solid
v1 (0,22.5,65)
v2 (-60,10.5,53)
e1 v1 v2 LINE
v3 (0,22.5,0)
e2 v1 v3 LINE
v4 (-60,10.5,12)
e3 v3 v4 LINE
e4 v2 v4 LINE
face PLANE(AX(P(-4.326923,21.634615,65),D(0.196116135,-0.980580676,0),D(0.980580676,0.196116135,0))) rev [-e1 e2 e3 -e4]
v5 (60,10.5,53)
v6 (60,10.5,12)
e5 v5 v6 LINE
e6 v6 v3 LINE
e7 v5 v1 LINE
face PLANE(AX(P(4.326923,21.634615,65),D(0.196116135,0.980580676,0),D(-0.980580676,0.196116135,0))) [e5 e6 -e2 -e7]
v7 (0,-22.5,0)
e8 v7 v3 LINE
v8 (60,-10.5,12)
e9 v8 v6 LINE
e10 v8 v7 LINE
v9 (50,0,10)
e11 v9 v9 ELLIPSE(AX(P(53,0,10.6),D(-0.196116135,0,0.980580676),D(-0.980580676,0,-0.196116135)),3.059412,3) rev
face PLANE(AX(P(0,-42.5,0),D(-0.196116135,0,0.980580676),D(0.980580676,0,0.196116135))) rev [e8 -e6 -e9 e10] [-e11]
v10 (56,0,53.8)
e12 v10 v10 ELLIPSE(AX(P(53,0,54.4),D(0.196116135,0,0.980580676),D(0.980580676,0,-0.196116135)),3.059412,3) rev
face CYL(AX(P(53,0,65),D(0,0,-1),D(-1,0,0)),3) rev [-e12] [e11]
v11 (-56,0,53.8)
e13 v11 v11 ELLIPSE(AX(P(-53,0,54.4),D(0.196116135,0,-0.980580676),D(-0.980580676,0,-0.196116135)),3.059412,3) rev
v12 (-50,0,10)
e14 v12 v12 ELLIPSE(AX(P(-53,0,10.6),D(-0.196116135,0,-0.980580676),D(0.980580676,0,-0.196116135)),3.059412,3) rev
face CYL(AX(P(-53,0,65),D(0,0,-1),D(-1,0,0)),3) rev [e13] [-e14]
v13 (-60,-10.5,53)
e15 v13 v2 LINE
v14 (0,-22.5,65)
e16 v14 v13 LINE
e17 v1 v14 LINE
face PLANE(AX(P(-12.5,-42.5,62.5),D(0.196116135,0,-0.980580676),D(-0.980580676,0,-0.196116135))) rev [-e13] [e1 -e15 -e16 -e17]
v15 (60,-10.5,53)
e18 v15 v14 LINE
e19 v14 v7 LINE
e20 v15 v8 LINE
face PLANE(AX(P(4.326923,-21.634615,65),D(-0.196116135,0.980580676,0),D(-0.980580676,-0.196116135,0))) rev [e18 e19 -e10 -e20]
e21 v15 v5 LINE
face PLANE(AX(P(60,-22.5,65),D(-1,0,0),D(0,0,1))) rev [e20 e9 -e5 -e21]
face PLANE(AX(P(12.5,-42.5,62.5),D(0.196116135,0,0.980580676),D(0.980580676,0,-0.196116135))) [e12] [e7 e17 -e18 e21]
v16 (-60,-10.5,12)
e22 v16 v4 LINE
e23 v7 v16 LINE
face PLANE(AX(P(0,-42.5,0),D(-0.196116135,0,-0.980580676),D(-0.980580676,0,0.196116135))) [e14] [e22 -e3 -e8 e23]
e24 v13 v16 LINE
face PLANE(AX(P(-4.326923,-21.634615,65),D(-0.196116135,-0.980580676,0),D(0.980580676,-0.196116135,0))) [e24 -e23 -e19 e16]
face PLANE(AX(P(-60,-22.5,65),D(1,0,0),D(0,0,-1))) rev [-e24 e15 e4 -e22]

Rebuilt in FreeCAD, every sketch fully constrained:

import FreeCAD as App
import Part
import Sketcher

V = App.Vector

doc = App.newDocument("Part")
body = doc.addObject("PartDesign::Body", "Body")

# Sketch on XY plane
sketch1 = body.newObject("Sketcher::SketchObject", "Sketch")
sketch1.AttachmentSupport = (doc.getObject("XY_Plane"), [""])
sketch1.MapMode = "FlatFace"
sketch1.addGeometry([
    Part.LineSegment(V(-60, 22, 0), V(-60, -22, 0)),
    Part.LineSegment(V(-60, -22, 0), V(60, -22, 0)),
    Part.LineSegment(V(60, -22, 0), V(60, 22, 0)),
    Part.LineSegment(V(60, 22, 0), V(-60, 22, 0)),
], False)
sketch1.addConstraint([
    Sketcher.Constraint("Coincident", 0, 2, 1, 1),
    Sketcher.Constraint("Coincident", 1, 2, 2, 1),
    Sketcher.Constraint("Coincident", 2, 2, 3, 1),
    Sketcher.Constraint("Coincident", 3, 2, 0, 1),
    Sketcher.Constraint("Vertical", 0),
    Sketcher.Constraint("Horizontal", 1),
    Sketcher.Constraint("Vertical", 2),
    Sketcher.Constraint("Horizontal", 3),
    Sketcher.Constraint("Symmetric", 0, 2, 2, 2, -1, 1),
    Sketcher.Constraint("DistanceX", 1, 1, 1, 2, 120.0),
    Sketcher.Constraint("DistanceY", 0, 2, 0, 1, 45.0),
])
pad1 = body.newObject("PartDesign::Pad", "Pad")
pad1.Profile = sketch1
pad1.Length = 65

# Sketch on XZ plane
sketch2 = body.newObject("Sketcher::SketchObject", "Sketch001")
sketch2.AttachmentSupport = (doc.getObject("XZ_Plane"), [""])
sketch2.MapMode = "FlatFace"
sketch2.AttachmentOffset = App.Placement(V(0, 0, -22.5), App.Rotation())
sketch2.addGeometry([
    Part.LineSegment(V(-60, 12, 0), V(0, 0, 0)),  # 0
    Part.LineSegment(V(0, 0, 0), V(-60, 0, 0)),  # 1
    Part.LineSegment(V(-60, 0, 0), V(-60, 12, 0)),  # 2
    Part.LineSegment(V(60, 0, 0), V(0, 0, 0)),  # 3
    Part.LineSegment(V(0, 0, 0), V(60, 12, 0)),  # 4
    Part.LineSegment(V(60, 12, 0), V(60, 0, 0)),  # 5
    Part.LineSegment(V(60, 65, 0), V(60, 53, 0)),  # 6
    Part.LineSegment(V(60, 53, 0), V(0, 65, 0)),  # 7
    Part.LineSegment(V(0, 65, 0), V(60, 65, 0)),  # 8
    Part.LineSegment(V(0, 65, 0), V(-60, 53, 0)),  # 9
    Part.LineSegment(V(-60, 53, 0), V(-60, 65, 0)),  # 10
    Part.LineSegment(V(-60, 65, 0), V(0, 65, 0)),  # 11
], False)
sketch2.addConstraint([
    Sketcher.Constraint("Coincident", 0, 2, 1, 1),
    Sketcher.Constraint("Coincident", 1, 2, 2, 1),
    Sketcher.Constraint("Coincident", 2, 2, 0, 1),
    Sketcher.Constraint("Coincident", 3, 2, 4, 1),
    Sketcher.Constraint("Coincident", 4, 2, 5, 1),
    Sketcher.Constraint("Coincident", 5, 2, 3, 1),
    Sketcher.Constraint("Coincident", 6, 2, 7, 1),
    Sketcher.Constraint("Coincident", 7, 2, 8, 1),
    Sketcher.Constraint("Coincident", 8, 2, 6, 1),
    Sketcher.Constraint("Coincident", 9, 2, 10, 1),
    Sketcher.Constraint("Coincident", 10, 2, 11, 1),
    Sketcher.Constraint("Coincident", 11, 2, 9, 1),
    Sketcher.Constraint("Horizontal", 1),
    Sketcher.Constraint("Vertical", 2),
    Sketcher.Constraint("Horizontal", 3),
    Sketcher.Constraint("Vertical", 5),
    Sketcher.Constraint("Vertical", 6),
    Sketcher.Constraint("Horizontal", 8),
    Sketcher.Constraint("Vertical", 10),
    Sketcher.Constraint("Horizontal", 11),
    Sketcher.Constraint("Coincident", 0, 2, -1, 1),
    Sketcher.Constraint("Coincident", 3, 2, -1, 1),
    Sketcher.Constraint("Coincident", 11, 2, 7, 2),
    Sketcher.Constraint("Symmetric", 2, 2, 4, 2, -2),
    Sketcher.Constraint("Symmetric", 6, 2, 9, 2, -2),
    Sketcher.Constraint("PointOnObject", 7, 2, -2),
    Sketcher.Constraint("Parallel", 0, 7),
    Sketcher.Constraint("Vertical", 5, 2, 6, 2),
    Sketcher.Constraint("DistanceX", 1, 2, 1, 1, 60.0),
    Sketcher.Constraint("DistanceY", 2, 1, 2, 2, 12.0),
    Sketcher.Constraint("DistanceY", -1, 1, 6, 2, 53.0),
])
pocket1 = body.newObject("PartDesign::Pocket", "Pocket")
pocket1.Profile = sketch2
pocket1.Length = 65
pocket1.Reversed = True

# Sketch on XY plane
sketch3 = body.newObject("Sketcher::SketchObject", "Sketch002")
sketch3.AttachmentSupport = (doc.getObject("XY_Plane"), [""])
sketch3.MapMode = "FlatFace"
sketch3.addGeometry([
    Part.LineSegment(V(0, 22, 0), V(-60, 22, 0)),  # 0
    Part.LineSegment(V(-60, 22, 0), V(-60, 10, 0)),  # 1
    Part.LineSegment(V(-60, 10, 0), V(0, 22, 0)),  # 2
    Part.LineSegment(V(60, 10, 0), V(60, 22, 0)),  # 3
    Part.LineSegment(V(60, 22, 0), V(0, 22, 0)),  # 4
    Part.LineSegment(V(0, 22, 0), V(60, 10, 0)),  # 5
    Part.LineSegment(V(0, -22, 0), V(60, -22, 0)),  # 6
    Part.LineSegment(V(60, -22, 0), V(60, -10, 0)),  # 7
    Part.LineSegment(V(60, -10, 0), V(0, -22, 0)),  # 8
    Part.LineSegment(V(-60, -10, 0), V(-60, -22, 0)),  # 9
    Part.LineSegment(V(-60, -22, 0), V(0, -22, 0)),  # 10
    Part.LineSegment(V(0, -22, 0), V(-60, -10, 0)),  # 11
], False)
sketch3.addConstraint([
    Sketcher.Constraint("Coincident", 0, 2, 1, 1),
    Sketcher.Constraint("Coincident", 1, 2, 2, 1),
    Sketcher.Constraint("Coincident", 2, 2, 0, 1),
    Sketcher.Constraint("Coincident", 3, 2, 4, 1),
    Sketcher.Constraint("Coincident", 4, 2, 5, 1),
    Sketcher.Constraint("Coincident", 5, 2, 3, 1),
    Sketcher.Constraint("Coincident", 6, 2, 7, 1),
    Sketcher.Constraint("Coincident", 7, 2, 8, 1),
    Sketcher.Constraint("Coincident", 8, 2, 6, 1),
    Sketcher.Constraint("Coincident", 9, 2, 10, 1),
    Sketcher.Constraint("Coincident", 10, 2, 11, 1),
    Sketcher.Constraint("Coincident", 11, 2, 9, 1),
    Sketcher.Constraint("Horizontal", 0),
    Sketcher.Constraint("Vertical", 1),
    Sketcher.Constraint("Vertical", 3),
    Sketcher.Constraint("Horizontal", 4),
    Sketcher.Constraint("Horizontal", 6),
    Sketcher.Constraint("Vertical", 7),
    Sketcher.Constraint("Vertical", 9),
    Sketcher.Constraint("Horizontal", 10),
    Sketcher.Constraint("Coincident", 4, 2, 2, 2),
    Sketcher.Constraint("Coincident", 10, 2, 8, 2),
    Sketcher.Constraint("Symmetric", 0, 2, 6, 2, -1, 1),
    Sketcher.Constraint("Symmetric", 5, 2, 11, 2, -1, 1),
    Sketcher.Constraint("Symmetric", 1, 2, 5, 2, -2),
    Sketcher.Constraint("PointOnObject", 2, 2, -2),
    Sketcher.Constraint("PointOnObject", 8, 2, -2),
    Sketcher.Constraint("Parallel", 2, 8),
    Sketcher.Constraint("DistanceX", 0, 2, 0, 1, 60.0),
    Sketcher.Constraint("DistanceY", 1, 2, 1, 1, 12.0),
    Sketcher.Constraint("DistanceY", 6, 2, 5, 2, 33.0),
])
pocket2 = body.newObject("PartDesign::Pocket", "Pocket001")
pocket2.Profile = sketch3
pocket2.Length = 65
pocket2.Reversed = True

# Sketch on XY plane
sketch4 = body.newObject("Sketcher::SketchObject", "Sketch003")
sketch4.AttachmentSupport = (doc.getObject("XY_Plane"), [""])
sketch4.MapMode = "FlatFace"
sketch4.addGeometry([
    Part.Circle(V(-53, 0, 0), V(0, 0, 1), 3),
    Part.Circle(V(53, 0, 0), V(0, 0, 1), 3),
], False)
sketch4.addConstraint([
    Sketcher.Constraint("Equal", 0, 1),
    Sketcher.Constraint("Symmetric", 0, 3, 1, 3, -1, 1),
    Sketcher.Constraint("PointOnObject", 0, 3, -1),
    Sketcher.Constraint("Diameter", 0, 6.0),
    Sketcher.Constraint("DistanceX", 0, 3, -1, 1, 53.0),
])
pocket3 = body.newObject("PartDesign::Pocket", "Pocket002")
pocket3.Profile = sketch4
pocket3.Type = "ThroughAll"
pocket3.Reversed = True

doc.recompute()
